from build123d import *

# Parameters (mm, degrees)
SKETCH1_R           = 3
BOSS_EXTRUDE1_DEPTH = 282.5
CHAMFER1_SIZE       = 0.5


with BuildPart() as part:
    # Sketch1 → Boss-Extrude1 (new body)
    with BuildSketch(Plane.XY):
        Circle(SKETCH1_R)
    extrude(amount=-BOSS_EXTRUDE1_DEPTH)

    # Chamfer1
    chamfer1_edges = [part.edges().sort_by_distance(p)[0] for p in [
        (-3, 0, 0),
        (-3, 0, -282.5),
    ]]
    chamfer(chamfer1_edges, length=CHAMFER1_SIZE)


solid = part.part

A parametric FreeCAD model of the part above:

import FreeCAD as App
import Part
import Sketcher

V = App.Vector
Q = App.Units.Quantity


def edges_at(feature, points):
    """Names of the edges that pass closest to the given points."""
    edges = feature.Shape.Edges
    near = lambda p: min(range(len(edges)), key=lambda i: edges[i].distToShape(Part.Vertex(*p))[0])
    return sorted({f"Edge{near(p) + 1}" for p in points})

doc = App.newDocument("Part")
body = doc.addObject("PartDesign::Body", "Body")

sketch1 = body.newObject("Sketcher::SketchObject", "Sketch")
sketch1.AttachmentSupport = (doc.getObject("XY_Plane"), [""])
sketch1.MapMode = "FlatFace"
sketch1.addGeometry(Part.Circle(V(0, 0, 0), V(0, 0, 1), 3), False)
sketch1.addConstraint([
    Sketcher.Constraint("Coincident", 0, 3, -1, 1),
    Sketcher.Constraint("Diameter", 0, Q("6 mm")),
])
pad1 = body.newObject("PartDesign::Pad", "Pad")
pad1.Profile = sketch1
pad1.Length = 282.5
pad1.Reversed = True
doc.recompute()

chamfer = body.newObject("PartDesign::Chamfer", "Chamfer")
chamfer.Base = (pad1, edges_at(pad1, [(-3, 0, 0), (-3, 0, -282.5)]))
chamfer.Size = 0.5

doc.recompute()
